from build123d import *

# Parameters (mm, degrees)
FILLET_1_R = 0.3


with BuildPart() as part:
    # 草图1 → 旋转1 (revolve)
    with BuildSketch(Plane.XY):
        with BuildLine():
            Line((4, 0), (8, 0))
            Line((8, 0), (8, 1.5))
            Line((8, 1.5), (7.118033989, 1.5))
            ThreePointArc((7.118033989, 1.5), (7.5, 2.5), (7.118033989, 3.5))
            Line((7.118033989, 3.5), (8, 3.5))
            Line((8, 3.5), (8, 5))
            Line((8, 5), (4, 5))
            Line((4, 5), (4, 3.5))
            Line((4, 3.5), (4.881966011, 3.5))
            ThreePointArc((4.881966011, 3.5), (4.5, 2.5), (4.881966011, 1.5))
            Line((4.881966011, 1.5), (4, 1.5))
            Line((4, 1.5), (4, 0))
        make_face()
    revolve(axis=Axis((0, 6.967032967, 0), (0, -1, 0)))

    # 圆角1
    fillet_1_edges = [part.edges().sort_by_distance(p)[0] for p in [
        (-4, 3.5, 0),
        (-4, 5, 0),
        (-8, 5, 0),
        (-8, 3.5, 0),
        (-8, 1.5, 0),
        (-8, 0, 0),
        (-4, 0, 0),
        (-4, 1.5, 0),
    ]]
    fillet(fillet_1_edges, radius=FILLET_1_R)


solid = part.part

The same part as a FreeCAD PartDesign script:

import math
import FreeCAD as App
import Part
import Sketcher
from FreeCAD import Vector
Q = App.Units.Quantity


def edges_at(feature, points):
    """Names of the edges that pass closest to the given points."""
    edges = feature.Shape.Edges
    near = lambda p: min(range(len(edges)), key=lambda i: edges[i].distToShape(Part.Vertex(*p))[0])
    return sorted({f"Edge{near(p) + 1}" for p in points})

doc = App.newDocument("Part")
body = doc.addObject("PartDesign::Body", "Body")

sketch1 = doc.addObject("Sketcher::SketchObject", "Sketch")
body.addObject(sketch1)
sketch1.AttachmentSupport = (doc.XY_Plane, [""])
sketch1.MapMode = "FlatFace"
sketch1.addGeometry([
    Part.LineSegment(Vector(4, 0, 0), Vector(8, 0, 0)),
    Part.LineSegment(Vector(8, 0, 0), Vector(8, 1.5, 0)),
    Part.LineSegment(Vector(8, 1.5, 0), Vector(7.1, 1.5, 0)),
    Part.ArcOfCircle(Part.Circle(Vector(6, 2.5, 0), Vector(0, 0, 1), 1.5), math.radians(-42), math.radians(42)),
    Part.LineSegment(Vector(7.1, 3.5, 0), Vector(8, 3.5, 0)),
    Part.LineSegment(Vector(8, 3.5, 0), Vector(8, 5, 0)),
    Part.LineSegment(Vector(8, 5, 0), Vector(4, 5, 0)),
    Part.LineSegment(Vector(4, 5, 0), Vector(4, 3.5, 0)),
    Part.LineSegment(Vector(4, 3.5, 0), Vector(4.9, 3.5, 0)),
    Part.ArcOfCircle(Part.Circle(Vector(6, 2.5, 0), Vector(0, 0, 1), 1.5), math.radians(138), math.radians(222)),
    Part.LineSegment(Vector(4.9, 1.5, 0), Vector(4, 1.5, 0)),
    Part.LineSegment(Vector(4, 1.5, 0), Vector(4, 0, 0)),
], False)
sketch1.addConstraint([
    Sketcher.Constraint("Coincident", 0, 2, 1, 1),
    Sketcher.Constraint("Coincident", 1, 2, 2, 1),
    Sketcher.Constraint("Coincident", 2, 2, 3, 1),
    Sketcher.Constraint("Coincident", 3, 2, 4, 1),
    Sketcher.Constraint("Coincident", 4, 2, 5, 1),
    Sketcher.Constraint("Coincident", 5, 2, 6, 1),
    Sketcher.Constraint("Coincident", 6, 2, 7, 1),
    Sketcher.Constraint("Coincident", 7, 2, 8, 1),
    Sketcher.Constraint("Coincident", 8, 2, 9, 1),
    Sketcher.Constraint("Coincident", 9, 2, 10, 1),
    Sketcher.Constraint("Coincident", 10, 2, 11, 1),
    Sketcher.Constraint("Coincident", 11, 2, 0, 1),
    Sketcher.Constraint("Horizontal", 0),
    Sketcher.Constraint("Vertical", 1),
    Sketcher.Constraint("Horizontal", 2),
    Sketcher.Constraint("Horizontal", 4),
    Sketcher.Constraint("Vertical", 5),
    Sketcher.Constraint("Horizontal", 6),
    Sketcher.Constraint("Vertical", 7),
    Sketcher.Constraint("Horizontal", 8),
    Sketcher.Constraint("Horizontal", 10),
    Sketcher.Constraint("Vertical", 11),
    Sketcher.Constraint("Coincident", 9, 3, 3, 3),
    Sketcher.Constraint("Equal", 3, 9),
    Sketcher.Constraint("PointOnObject", 0, 2, -1),
    Sketcher.Constraint("Horizontal", 4, 2, 7, 2),
    Sketcher.Constraint("Horizontal", 2, 2, 9, 2),
    Sketcher.Constraint("Vertical", 2, 2, 3, 2),
    Sketcher.Constraint("Vertical", 1, 2, 4, 2),
    Sketcher.Constraint("Vertical", 7, 2, 10, 2),
    Sketcher.Constraint("Equal", 4, 8),
    Sketcher.Constraint("Equal", 1, 5),
    Sketcher.Constraint("Radius", 3, Q("1.5 mm")),
    Sketcher.Constraint("DistanceX", 0, 1, 0, 2, Q("4 mm")),
    Sketcher.Constraint("DistanceY", 1, 1, 1, 2, Q("1.5 mm")),
    Sketcher.Constraint("DistanceX", -1, 1, 3, 3, Q("6 mm")),
    Sketcher.Constraint("DistanceY", -1, 1, 5, 2, Q("5 mm")),
])
revolution = doc.addObject("PartDesign::Revolution", "Revolution")
body.addObject(revolution)
revolution.Profile = sketch1
revolution.ReferenceAxis = (sketch1, ["V_Axis"])
revolution.Angle = 360
doc.recompute()

fillet = doc.addObject("PartDesign::Fillet", "Fillet")
body.addObject(fillet)
fillet.Base = (revolution, edges_at(revolution, [
    (-4, 3.5, 0),
    (-4, 5, 0),
    (-8, 5, 0),
    (-8, 3.5, 0),
    (-8, 1.5, 0),
    (-8, 0, 0),
    (-4, 0, 0),
    (-4, 1.5, 0),
]))
fillet.Radius = 0.3

doc.recompute()
